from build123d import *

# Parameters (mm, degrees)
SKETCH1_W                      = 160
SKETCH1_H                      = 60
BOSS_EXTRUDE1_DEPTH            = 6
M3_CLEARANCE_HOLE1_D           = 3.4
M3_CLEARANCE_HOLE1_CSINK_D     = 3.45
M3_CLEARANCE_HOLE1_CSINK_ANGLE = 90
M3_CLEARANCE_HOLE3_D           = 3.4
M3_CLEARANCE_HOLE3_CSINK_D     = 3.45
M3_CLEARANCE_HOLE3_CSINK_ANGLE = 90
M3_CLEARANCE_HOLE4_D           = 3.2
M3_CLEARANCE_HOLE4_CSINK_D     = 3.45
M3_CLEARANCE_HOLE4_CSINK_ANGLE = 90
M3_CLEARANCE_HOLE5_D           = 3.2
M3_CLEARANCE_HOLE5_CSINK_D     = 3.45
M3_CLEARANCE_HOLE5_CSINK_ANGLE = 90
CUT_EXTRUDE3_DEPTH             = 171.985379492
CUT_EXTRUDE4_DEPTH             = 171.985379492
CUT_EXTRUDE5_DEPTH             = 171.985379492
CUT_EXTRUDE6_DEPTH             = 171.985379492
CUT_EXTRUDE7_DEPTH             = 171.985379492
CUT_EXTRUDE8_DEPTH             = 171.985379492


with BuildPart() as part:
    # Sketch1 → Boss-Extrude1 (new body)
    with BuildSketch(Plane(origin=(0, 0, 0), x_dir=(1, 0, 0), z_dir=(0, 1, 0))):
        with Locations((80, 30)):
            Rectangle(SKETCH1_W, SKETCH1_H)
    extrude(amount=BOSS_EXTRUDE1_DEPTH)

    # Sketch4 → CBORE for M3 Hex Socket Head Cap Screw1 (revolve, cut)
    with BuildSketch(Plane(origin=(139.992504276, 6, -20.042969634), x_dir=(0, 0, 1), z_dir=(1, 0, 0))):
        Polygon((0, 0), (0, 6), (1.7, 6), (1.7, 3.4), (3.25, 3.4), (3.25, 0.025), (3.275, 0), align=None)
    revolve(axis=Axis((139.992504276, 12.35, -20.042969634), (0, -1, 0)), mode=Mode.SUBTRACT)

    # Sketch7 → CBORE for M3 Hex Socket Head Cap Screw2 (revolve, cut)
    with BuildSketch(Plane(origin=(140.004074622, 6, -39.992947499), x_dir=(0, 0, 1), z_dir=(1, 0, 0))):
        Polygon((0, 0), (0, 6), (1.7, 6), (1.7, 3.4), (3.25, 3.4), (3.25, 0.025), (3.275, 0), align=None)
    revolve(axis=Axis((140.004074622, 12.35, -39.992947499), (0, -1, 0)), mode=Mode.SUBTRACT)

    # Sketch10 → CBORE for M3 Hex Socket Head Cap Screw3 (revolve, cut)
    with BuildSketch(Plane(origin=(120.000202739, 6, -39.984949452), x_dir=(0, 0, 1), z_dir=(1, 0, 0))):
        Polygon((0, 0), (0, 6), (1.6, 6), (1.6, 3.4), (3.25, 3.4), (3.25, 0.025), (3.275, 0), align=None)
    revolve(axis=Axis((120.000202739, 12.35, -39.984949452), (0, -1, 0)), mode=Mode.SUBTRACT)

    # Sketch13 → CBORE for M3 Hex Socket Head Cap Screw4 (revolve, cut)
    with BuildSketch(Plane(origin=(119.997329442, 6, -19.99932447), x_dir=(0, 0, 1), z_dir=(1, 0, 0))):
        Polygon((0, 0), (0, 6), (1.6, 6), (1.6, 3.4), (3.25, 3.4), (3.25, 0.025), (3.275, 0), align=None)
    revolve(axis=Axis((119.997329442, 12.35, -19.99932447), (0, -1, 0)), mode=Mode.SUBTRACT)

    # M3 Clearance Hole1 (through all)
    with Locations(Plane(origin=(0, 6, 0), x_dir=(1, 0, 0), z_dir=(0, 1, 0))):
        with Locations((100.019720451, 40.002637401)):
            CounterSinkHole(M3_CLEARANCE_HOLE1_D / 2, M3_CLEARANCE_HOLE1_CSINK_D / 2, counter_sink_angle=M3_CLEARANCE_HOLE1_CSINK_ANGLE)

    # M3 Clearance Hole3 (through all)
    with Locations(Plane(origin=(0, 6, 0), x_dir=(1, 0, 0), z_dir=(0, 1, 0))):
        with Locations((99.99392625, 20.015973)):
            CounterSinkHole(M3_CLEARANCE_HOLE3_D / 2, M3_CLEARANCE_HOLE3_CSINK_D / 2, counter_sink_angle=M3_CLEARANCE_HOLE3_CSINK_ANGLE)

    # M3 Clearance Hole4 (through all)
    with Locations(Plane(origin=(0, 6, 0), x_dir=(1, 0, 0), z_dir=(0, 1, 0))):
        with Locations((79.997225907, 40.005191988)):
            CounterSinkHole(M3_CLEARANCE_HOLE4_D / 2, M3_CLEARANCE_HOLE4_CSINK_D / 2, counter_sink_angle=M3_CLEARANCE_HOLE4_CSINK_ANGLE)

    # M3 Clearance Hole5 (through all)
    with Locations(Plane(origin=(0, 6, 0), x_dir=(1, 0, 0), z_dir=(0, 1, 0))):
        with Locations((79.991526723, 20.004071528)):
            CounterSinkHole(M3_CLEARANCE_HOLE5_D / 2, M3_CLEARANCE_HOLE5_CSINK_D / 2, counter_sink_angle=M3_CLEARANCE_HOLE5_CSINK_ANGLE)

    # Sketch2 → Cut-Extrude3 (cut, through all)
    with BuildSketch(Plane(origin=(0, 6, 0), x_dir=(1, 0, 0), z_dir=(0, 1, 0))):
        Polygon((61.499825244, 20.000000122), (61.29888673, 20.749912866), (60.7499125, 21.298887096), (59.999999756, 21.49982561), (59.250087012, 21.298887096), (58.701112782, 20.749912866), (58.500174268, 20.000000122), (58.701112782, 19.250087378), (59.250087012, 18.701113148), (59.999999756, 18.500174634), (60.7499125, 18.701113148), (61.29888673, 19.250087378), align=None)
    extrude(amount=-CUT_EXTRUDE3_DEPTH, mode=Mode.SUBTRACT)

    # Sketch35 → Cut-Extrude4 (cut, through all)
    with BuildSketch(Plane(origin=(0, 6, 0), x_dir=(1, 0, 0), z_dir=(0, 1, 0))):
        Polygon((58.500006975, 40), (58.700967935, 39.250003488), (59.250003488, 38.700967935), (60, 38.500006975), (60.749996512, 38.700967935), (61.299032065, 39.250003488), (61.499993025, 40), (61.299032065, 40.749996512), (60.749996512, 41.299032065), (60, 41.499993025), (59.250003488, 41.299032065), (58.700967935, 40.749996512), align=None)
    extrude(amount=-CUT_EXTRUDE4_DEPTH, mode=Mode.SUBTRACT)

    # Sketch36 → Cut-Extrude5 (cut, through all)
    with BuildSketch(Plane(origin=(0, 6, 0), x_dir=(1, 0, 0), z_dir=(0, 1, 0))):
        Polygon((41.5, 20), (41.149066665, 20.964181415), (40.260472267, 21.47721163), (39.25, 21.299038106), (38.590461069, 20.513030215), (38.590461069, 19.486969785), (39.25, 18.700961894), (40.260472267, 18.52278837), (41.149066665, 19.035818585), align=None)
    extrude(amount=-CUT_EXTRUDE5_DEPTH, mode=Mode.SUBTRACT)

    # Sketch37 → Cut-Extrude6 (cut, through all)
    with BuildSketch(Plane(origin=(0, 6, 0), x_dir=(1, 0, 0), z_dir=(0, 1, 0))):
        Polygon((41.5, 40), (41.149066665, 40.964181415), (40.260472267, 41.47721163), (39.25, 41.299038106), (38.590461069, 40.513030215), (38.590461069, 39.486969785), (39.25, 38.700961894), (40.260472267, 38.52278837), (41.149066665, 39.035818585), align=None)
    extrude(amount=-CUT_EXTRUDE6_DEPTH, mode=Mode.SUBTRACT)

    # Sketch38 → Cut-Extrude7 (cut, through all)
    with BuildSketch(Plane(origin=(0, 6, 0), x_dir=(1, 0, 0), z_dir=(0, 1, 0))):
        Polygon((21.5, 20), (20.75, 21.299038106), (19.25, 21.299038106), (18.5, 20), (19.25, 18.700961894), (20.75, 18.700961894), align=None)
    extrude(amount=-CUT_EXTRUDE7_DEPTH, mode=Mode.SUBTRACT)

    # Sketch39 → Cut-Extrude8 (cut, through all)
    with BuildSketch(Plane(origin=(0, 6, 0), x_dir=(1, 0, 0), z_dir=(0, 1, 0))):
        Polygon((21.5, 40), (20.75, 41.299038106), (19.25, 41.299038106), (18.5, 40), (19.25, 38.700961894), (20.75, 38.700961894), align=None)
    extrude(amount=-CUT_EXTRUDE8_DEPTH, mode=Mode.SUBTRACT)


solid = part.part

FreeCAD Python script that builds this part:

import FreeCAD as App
import Part
import Sketcher
from FreeCAD import Vector
Q = App.Units.Quantity


def add_polygon(sketch, points):
    """Adds a closed chain of lines whose ends are joined by coincident constraints."""
    first, n = sketch.GeometryCount, len(points)
    for a, b in zip(points, points[1:] + points[:1]):
        sketch.addGeometry(Part.LineSegment(App.Vector(*a, 0), App.Vector(*b, 0)), False)
    for i in range(n):
        sketch.addConstraint(Sketcher.Constraint("Coincident", first + i, 2, first + (i + 1) % n, 1))

doc = App.newDocument("Part")
body = doc.addObject("PartDesign::Body", "Body")

# Sketch on XZ plane
sketch1 = body.newObject("Sketcher::SketchObject", "Sketch")
sketch1.AttachmentSupport = (doc.getObject("XZ_Plane"), [""])
sketch1.MapMode = "FlatFace"
add_polygon(sketch1, [(0, -60), (0, 0), (160, 0), (160, -60)])  # lines 0-3
sketch1.addConstraint([
    Sketcher.Constraint("Vertical", 0),
    Sketcher.Constraint("Horizontal", 1),
    Sketcher.Constraint("Vertical", 2),
    Sketcher.Constraint("Horizontal", 3),
    Sketcher.Constraint("Coincident", 0, 2, -1, 1),
    Sketcher.Constraint("DistanceX", 1, 1, 1, 2, 160.0),
    Sketcher.Constraint("DistanceY", 0, 1, 0, 2, 60.0),
])
pad1 = body.newObject("PartDesign::Pad", "Pad")
pad1.Profile = sketch1
pad1.Length = 6
pad1.Reversed = True

# Sketch on YZ plane
sketch2 = body.newObject("Sketcher::SketchObject", "Sketch001")
sketch2.AttachmentSupport = (doc.getObject("YZ_Plane"), [""])
sketch2.MapMode = "FlatFace"
sketch2.AttachmentOffset = App.Placement(Vector(0, 0, 139.992504), App.Rotation())
add_polygon(sketch2, [(0, -20.04297), (6, -20.04297), (6, -16.76797), (5.975, -16.79297), (2.6, -16.79297), (2.6, -18.34297), (0, -18.34297)])  # lines 0-6
sketch2.addGeometry(Part.LineSegment(Vector(6, -20.04297, 0), Vector(0, -20.04297, 0)), True)  # axis
sketch2.addConstraint([
    Sketcher.Constraint("Horizontal", 0),
    Sketcher.Constraint("Vertical", 1),
    Sketcher.Constraint("Horizontal", 3),
    Sketcher.Constraint("Vertical", 4),
    Sketcher.Constraint("Horizontal", 5),
    Sketcher.Constraint("Vertical", 6),
    Sketcher.Constraint("Horizontal", 7),
    Sketcher.Constraint("Coincident", 7, 1, 0, 2),
    Sketcher.Constraint("PointOnObject", 5, 2, -2),
    Sketcher.Constraint("PointOnObject", 7, 2, -2),
    Sketcher.Constraint("DistanceX", 0, 1, 0, 2, 6.0),
    Sketcher.Constraint("Angle", 2, Q("-135 deg")),
    Sketcher.Constraint("DistanceX", 5, 2, 5, 1, 2.6),
    Sketcher.Constraint("DistanceY", 6, 2, 6, 1, 1.7),
    Sketcher.Constraint("DistanceY", 4, 2, 4, 1, 1.55),
    Sketcher.Constraint("DistanceX", 3, 2, 3, 1, 3.375),
    Sketcher.Constraint("DistanceY", 0, 2, -1, 1, 20.04297),
])
groove = body.newObject("PartDesign::Groove", "Groove")
groove.Profile = sketch2
groove.ReferenceAxis = (sketch2, ["Axis0"])
groove.Angle = 360

# Sketch on YZ plane
sketch3 = body.newObject("Sketcher::SketchObject", "Sketch002")
sketch3.AttachmentSupport = (doc.getObject("YZ_Plane"), [""])
sketch3.MapMode = "FlatFace"
sketch3.AttachmentOffset = App.Placement(Vector(0, 0, 140.004075), App.Rotation())
add_polygon(sketch3, [(0, -39.993), (6, -39.993), (6, -36.718), (5.975, -36.743), (2.6, -36.743), (2.6, -38.293), (0, -38.293)])  # lines 0-6
sketch3.addGeometry(Part.LineSegment(Vector(6, -39.993, 0), Vector(0, -39.993, 0)), True)  # axis
sketch3.addConstraint([
    Sketcher.Constraint("Horizontal", 0),
    Sketcher.Constraint("Vertical", 1),
    Sketcher.Constraint("Horizontal", 3),
    Sketcher.Constraint("Vertical", 4),
    Sketcher.Constraint("Horizontal", 5),
    Sketcher.Constraint("Vertical", 6),
    Sketcher.Constraint("Horizontal", 7),
    Sketcher.Constraint("Coincident", 7, 1, 0, 2),
    Sketcher.Constraint("PointOnObject", 5, 2, -2),
    Sketcher.Constraint("PointOnObject", 7, 2, -2),
    Sketcher.Constraint("DistanceX", 0, 1, 0, 2, 6.0),
    Sketcher.Constraint("Angle", 2, Q("-135 deg")),
    Sketcher.Constraint("DistanceX", 5, 2, 5, 1, 2.6),
    Sketcher.Constraint("DistanceY", 6, 2, 6, 1, 1.7),
    Sketcher.Constraint("DistanceY", 4, 2, 4, 1, 1.55),
    Sketcher.Constraint("DistanceX", 3, 2, 3, 1, 3.375),
    Sketcher.Constraint("DistanceY", 0, 2, -1, 1, 39.992947),
])
groove2 = body.newObject("PartDesign::Groove", "Groove001")
groove2.Profile = sketch3
groove2.ReferenceAxis = (sketch3, ["Axis0"])
groove2.Angle = 360

# Sketch on YZ plane
sketch4 = body.newObject("Sketcher::SketchObject", "Sketch003")
sketch4.AttachmentSupport = (doc.getObject("YZ_Plane"), [""])
sketch4.MapMode = "FlatFace"
sketch4.AttachmentOffset = App.Placement(Vector(0, 0, 120.000203), App.Rotation())
add_polygon(sketch4, [(0, -39.985), (6, -39.985), (6, -36.71), (5.975, -36.735), (2.6, -36.735), (2.6, -38.385), (0, -38.385)])  # lines 0-6
sketch4.addGeometry(Part.LineSegment(Vector(6, -39.985, 0), Vector(0, -39.985, 0)), True)  # axis
sketch4.addConstraint([
    Sketcher.Constraint("Horizontal", 0),
    Sketcher.Constraint("Vertical", 1),
    Sketcher.Constraint("Horizontal", 3),
    Sketcher.Constraint("Vertical", 4),
    Sketcher.Constraint("Horizontal", 5),
    Sketcher.Constraint("Vertical", 6),
    Sketcher.Constraint("Horizontal", 7),
    Sketcher.Constraint("Coincident", 7, 1, 0, 2),
    Sketcher.Constraint("PointOnObject", 5, 2, -2),
    Sketcher.Constraint("PointOnObject", 7, 2, -2),
    Sketcher.Constraint("DistanceX", 0, 1, 0, 2, 6.0),
    Sketcher.Constraint("Angle", 2, Q("-135 deg")),
    Sketcher.Constraint("DistanceX", 5, 2, 5, 1, 2.6),
    Sketcher.Constraint("DistanceY", 6, 2, 6, 1, 1.6),
    Sketcher.Constraint("DistanceY", 4, 2, 4, 1, 1.65),
    Sketcher.Constraint("DistanceX", 3, 2, 3, 1, 3.375),
    Sketcher.Constraint("DistanceY", 0, 2, -1, 1, 39.984949),
])
groove3 = body.newObject("PartDesign::Groove", "Groove002")
groove3.Profile = sketch4
groove3.ReferenceAxis = (sketch4, ["Axis0"])
groove3.Angle = 360

# Sketch on YZ plane
sketch5 = body.newObject("Sketcher::SketchObject", "Sketch004")
sketch5.AttachmentSupport = (doc.getObject("YZ_Plane"), [""])
sketch5.MapMode = "FlatFace"
sketch5.AttachmentOffset = App.Placement(Vector(0, 0, 119.997329), App.Rotation())
add_polygon(sketch5, [(0, -19.999), (6, -19.999), (6, -16.724), (5.975, -16.749), (2.6, -16.749), (2.6, -18.399), (0, -18.399)])  # lines 0-6
sketch5.addGeometry(Part.LineSegment(Vector(6, -19.999, 0), Vector(0, -19.999, 0)), True)  # axis
sketch5.addConstraint([
    Sketcher.Constraint("Horizontal", 0),
    Sketcher.Constraint("Vertical", 1),
    Sketcher.Constraint("Horizontal", 3),
    Sketcher.Constraint("Vertical", 4),
    Sketcher.Constraint("Horizontal", 5),
    Sketcher.Constraint("Vertical", 6),
    Sketcher.Constraint("Horizontal", 7),
    Sketcher.Constraint("Coincident", 7, 1, 0, 2),
    Sketcher.Constraint("PointOnObject", 5, 2, -2),
    Sketcher.Constraint("PointOnObject", 7, 2, -2),
    Sketcher.Constraint("DistanceX", 0, 1, 0, 2, 6.0),
    Sketcher.Constraint("Angle", 2, Q("-135 deg")),
    Sketcher.Constraint("DistanceX", 5, 2, 5, 1, 2.6),
    Sketcher.Constraint("DistanceY", 6, 2, 6, 1, 1.6),
    Sketcher.Constraint("DistanceY", 4, 2, 4, 1, 1.65),
    Sketcher.Constraint("DistanceX", 3, 2, 3, 1, 3.375),
    Sketcher.Constraint("DistanceY", 0, 2, -1, 1, 19.999324),
])
groove4 = body.newObject("PartDesign::Groove", "Groove003")
groove4.Profile = sketch5
groove4.ReferenceAxis = (sketch5, ["Axis0"])
groove4.Angle = 360

# Sketch on XZ plane
sketch6 = body.newObject("Sketcher::SketchObject", "Sketch005")
sketch6.AttachmentSupport = (doc.getObject("XZ_Plane"), [""])
sketch6.MapMode = "FlatFace"
sketch6.AttachmentOffset = App.Placement(Vector(0, 0, -6), App.Rotation())
sketch6.addGeometry(Part.Circle(Vector(100, -40, 0), Vector(0, 0, 1), 1.7), False)
sketch6.addConstraint([
    Sketcher.Constraint("Diameter", 0, 3.4),
    Sketcher.Constraint("DistanceX", -1, 1, 0, 3, 100.01972),
    Sketcher.Constraint("DistanceY", 0, 3, -1, 1, 40.002637),
])
doc.recompute()
hole = body.newObject("PartDesign::Hole", "Hole")
hole.Profile = sketch6
hole.ThreadType = "None"
hole.Diameter = 3.4
hole.DepthType = "ThroughAll"
hole.HoleCutType = "Countersink"
hole.HoleCutDiameter = 3.45
hole.HoleCutCountersinkAngle = 90
hole.Reversed = True

# Sketch on XZ plane
sketch7 = body.newObject("Sketcher::SketchObject", "Sketch006")
sketch7.AttachmentSupport = (doc.getObject("XZ_Plane"), [""])
sketch7.MapMode = "FlatFace"
sketch7.AttachmentOffset = App.Placement(Vector(0, 0, -6), App.Rotation())
sketch7.addGeometry(Part.Circle(Vector(100, -20, 0), Vector(0, 0, 1), 1.7), False)
sketch7.addConstraint([
    Sketcher.Constraint("Diameter", 0, 3.4),
    Sketcher.Constraint("DistanceX", -1, 1, 0, 3, 99.993926),
    Sketcher.Constraint("DistanceY", 0, 3, -1, 1, 20.015973),
])
doc.recompute()
hole2 = body.newObject("PartDesign::Hole", "Hole001")
hole2.Profile = sketch7
hole2.ThreadType = "None"
hole2.Diameter = 3.4
hole2.DepthType = "ThroughAll"
hole2.HoleCutType = "Countersink"
hole2.HoleCutDiameter = 3.45
hole2.HoleCutCountersinkAngle = 90
hole2.Reversed = True

# Sketch on XZ plane
sketch8 = body.newObject("Sketcher::SketchObject", "Sketch007")
sketch8.AttachmentSupport = (doc.getObject("XZ_Plane"), [""])
sketch8.MapMode = "FlatFace"
sketch8.AttachmentOffset = App.Placement(Vector(0, 0, -6), App.Rotation())
sketch8.addGeometry(Part.Circle(Vector(80, -40, 0), Vector(0, 0, 1), 1.6), False)
sketch8.addConstraint([
    Sketcher.Constraint("Diameter", 0, 3.2),
    Sketcher.Constraint("DistanceY", 0, 3, -1, 1, 40.005192),
    Sketcher.Constraint("DistanceX", -1, 1, 0, 3, 79.997226),
])
doc.recompute()
hole3 = body.newObject("PartDesign::Hole", "Hole002")
hole3.Profile = sketch8
hole3.ThreadType = "None"
hole3.Diameter = 3.2
hole3.DepthType = "ThroughAll"
hole3.HoleCutType = "Countersink"
hole3.HoleCutDiameter = 3.45
hole3.HoleCutCountersinkAngle = 90
hole3.Reversed = True

# Sketch on XZ plane
sketch9 = body.newObject("Sketcher::SketchObject", "Sketch008")
sketch9.AttachmentSupport = (doc.getObject("XZ_Plane"), [""])
sketch9.MapMode = "FlatFace"
sketch9.AttachmentOffset = App.Placement(Vector(0, 0, -6), App.Rotation())
sketch9.addGeometry(Part.Circle(Vector(80, -20, 0), Vector(0, 0, 1), 1.6), False)
sketch9.addConstraint([
    Sketcher.Constraint("Diameter", 0, 3.2),
    Sketcher.Constraint("DistanceY", 0, 3, -1, 1, 20.004072),
    Sketcher.Constraint("DistanceX", -1, 1, 0, 3, 79.991527),
])
doc.recompute()
hole4 = body.newObject("PartDesign::Hole", "Hole003")
hole4.Profile = sketch9
hole4.ThreadType = "None"
hole4.Diameter = 3.2
hole4.DepthType = "ThroughAll"
hole4.HoleCutType = "Countersink"
hole4.HoleCutDiameter = 3.45
hole4.HoleCutCountersinkAngle = 90
hole4.Reversed = True

# Sketch on XZ plane
sketch10 = body.newObject("Sketcher::SketchObject", "Sketch009")
sketch10.AttachmentSupport = (doc.getObject("XZ_Plane"), [""])
sketch10.MapMode = "FlatFace"
sketch10.AttachmentOffset = App.Placement(Vector(0, 0, -6), App.Rotation())
add_polygon(sketch10, [(61.5, -20), (61.3, -20.7), (60.7, -21.3), (60, -21.5), (59.3, -21.3), (58.7, -20.7), (58.5, -20), (58.7, -19.3), (59.3, -18.7), (60, -18.5), (60.7, -18.7), (61.3, -19.3)])  # lines 0-11
sketch10.addConstraint([
    Sketcher.Constraint("Perpendicular", 0, 3),
    Sketcher.Constraint("Perpendicular", 1, 4),
    Sketcher.Constraint("Perpendicular", 2, 5),
    Sketcher.Constraint("Perpendicular", 3, 6),
    Sketcher.Constraint("Perpendicular", 4, 7),
    Sketcher.Constraint("Perpendicular", 5, 8),
    Sketcher.Constraint("Perpendicular", 6, 9),
    Sketcher.Constraint("Perpendicular", 7, 10),
    Sketcher.Constraint("Perpendicular", 8, 11),
    Sketcher.Constraint("Horizontal", 1, 2, 3, 2),
    Sketcher.Constraint("Horizontal", 0, 2, 4, 2),
    Sketcher.Constraint("Horizontal", 7, 2, 9, 2),
    Sketcher.Constraint("Horizontal", 6, 2, 10, 2),
    Sketcher.Constraint("Horizontal", 5, 2, 11, 2),
    Sketcher.Constraint("Vertical", 4, 2, 6, 2),
    Sketcher.Constraint("Vertical", 3, 2, 7, 2),
    Sketcher.Constraint("Vertical", 2, 2, 8, 2),
    Sketcher.Constraint("Vertical", 1, 2, 9, 2),
    Sketcher.Constraint("Equal", 0, 1),
    Sketcher.Constraint("Equal", 1, 2),
    Sketcher.Constraint("Angle", 0, Q("-105 deg")),
    Sketcher.Constraint("DistanceX", -1, 1, 2, 2, 60.0),
    Sketcher.Constraint("DistanceY", 5, 2, -1, 1, 20.0),
    Sketcher.Constraint("DistanceX", 3, 2, 0, 2, 2.0488),
])
pocket1 = body.newObject("PartDesign::Pocket", "Pocket")
pocket1.Profile = sketch10
pocket1.Type = "ThroughAll"
pocket1.Reversed = True

# Sketch on XZ plane
sketch11 = body.newObject("Sketcher::SketchObject", "Sketch010")
sketch11.AttachmentSupport = (doc.getObject("XZ_Plane"), [""])
sketch11.MapMode = "FlatFace"
sketch11.AttachmentOffset = App.Placement(Vector(0, 0, -6), App.Rotation())
add_polygon(sketch11, [(58.5, -40), (58.7, -39.3), (59.3, -38.7), (60, -38.5), (60.7, -38.7), (61.3, -39.3), (61.5, -40), (61.3, -40.7), (60.7, -41.3), (60, -41.5), (59.3, -41.3), (58.7, -40.7)])  # lines 0-11
sketch11.addConstraint([
    Sketcher.Constraint("Perpendicular", 0, 3),
    Sketcher.Constraint("Perpendicular", 1, 4),
    Sketcher.Constraint("Perpendicular", 2, 5),
    Sketcher.Constraint("Perpendicular", 3, 6),
    Sketcher.Constraint("Perpendicular", 4, 7),
    Sketcher.Constraint("Perpendicular", 5, 8),
    Sketcher.Constraint("Perpendicular", 6, 9),
    Sketcher.Constraint("Perpendicular", 7, 10),
    Sketcher.Constraint("Perpendicular", 8, 11),
    Sketcher.Constraint("Horizontal", 1, 2, 3, 2),
    Sketcher.Constraint("Horizontal", 0, 2, 4, 2),
    Sketcher.Constraint("Horizontal", 7, 2, 9, 2),
    Sketcher.Constraint("Horizontal", 6, 2, 10, 2),
    Sketcher.Constraint("Horizontal", 5, 2, 11, 2),
    Sketcher.Constraint("Vertical", 4, 2, 6, 2),
    Sketcher.Constraint("Vertical", 3, 2, 7, 2),
    Sketcher.Constraint("Vertical", 2, 2, 8, 2),
    Sketcher.Constraint("Vertical", 1, 2, 9, 2),
    Sketcher.Constraint("Equal", 0, 1),
    Sketcher.Constraint("Equal", 1, 2),
    Sketcher.Constraint("Angle", 0, Q("75 deg")),
    Sketcher.Constraint("DistanceX", -1, 1, 2, 2, 60.0),
    Sketcher.Constraint("DistanceY", 5, 2, -1, 1, 40.0),
    Sketcher.Constraint("DistanceY", 1, 2, 2, 2, 0.200961),
])
pocket2 = body.newObject("PartDesign::Pocket", "Pocket001")
pocket2.Profile = sketch11
pocket2.Type = "ThroughAll"
pocket2.Reversed = True

# Sketch on XZ plane
sketch12 = body.newObject("Sketcher::SketchObject", "Sketch011")
sketch12.AttachmentSupport = (doc.getObject("XZ_Plane"), [""])
sketch12.MapMode = "FlatFace"
sketch12.AttachmentOffset = App.Placement(Vector(0, 0, -6), App.Rotation())
add_polygon(sketch12, [(41.5, -20), (41.1, -21), (40.3, -21.5), (39.2, -21.3), (38.6, -20.5), (38.6, -19.5), (39.2, -18.7), (40.3, -18.5), (41.1, -19)])  # lines 0-8
sketch12.addConstraint([
    Sketcher.Constraint("Vertical", 4),
    Sketcher.Constraint("Vertical", 2, 2, 5, 2),
    Sketcher.Constraint("Vertical", 1, 2, 6, 2),
    Sketcher.Constraint("Vertical", 0, 2, 7, 2),
    Sketcher.Constraint("Equal", 0, 1),
    Sketcher.Constraint("Equal", 1, 2),
    Sketcher.Constraint("Equal", 2, 3),
    Sketcher.Constraint("Equal", 3, 5),
    Sketcher.Constraint("Equal", 5, 6),
    Sketcher.Constraint("Equal", 6, 7),
    Sketcher.Constraint("Equal", 7, 8),
    Sketcher.Constraint("Angle", 0, Q("-110 deg")),
    Sketcher.Constraint("Angle", 1, Q("-150 deg")),
    Sketcher.Constraint("Angle", 2, Q("170 deg")),
    Sketcher.Constraint("Angle", 3, Q("130 deg")),
    Sketcher.Constraint("DistanceY", 8, 2, -1, 1, 20.0),
    Sketcher.Constraint("DistanceX", -1, 1, 8, 2, 41.5),
    Sketcher.Constraint("DistanceX", -1, 1, 2, 2, 39.25),
])
pocket3 = body.newObject("PartDesign::Pocket", "Pocket002")
pocket3.Profile = sketch12
pocket3.Type = "ThroughAll"
pocket3.Reversed = True

# Sketch on XZ plane
sketch13 = body.newObject("Sketcher::SketchObject", "Sketch012")
sketch13.AttachmentSupport = (doc.getObject("XZ_Plane"), [""])
sketch13.MapMode = "FlatFace"
sketch13.AttachmentOffset = App.Placement(Vector(0, 0, -6), App.Rotation())
add_polygon(sketch13, [(41.5, -40), (41.1, -41), (40.3, -41.5), (39.2, -41.3), (38.6, -40.5), (38.6, -39.5), (39.2, -38.7), (40.3, -38.5), (41.1, -39)])  # lines 0-8
sketch13.addConstraint([
    Sketcher.Constraint("Vertical", 4),
    Sketcher.Constraint("Vertical", 2, 2, 5, 2),
    Sketcher.Constraint("Vertical", 1, 2, 6, 2),
    Sketcher.Constraint("Vertical", 0, 2, 7, 2),
    Sketcher.Constraint("Equal", 0, 1),
    Sketcher.Constraint("Equal", 1, 2),
    Sketcher.Constraint("Equal", 2, 3),
    Sketcher.Constraint("Equal", 3, 5),
    Sketcher.Constraint("Equal", 5, 6),
    Sketcher.Constraint("Equal", 6, 7),
    Sketcher.Constraint("Equal", 7, 8),
    Sketcher.Constraint("Angle", 0, Q("-110 deg")),
    Sketcher.Constraint("Angle", 1, Q("-150 deg")),
    Sketcher.Constraint("Angle", 2, Q("170 deg")),
    Sketcher.Constraint("Angle", 3, Q("130 deg")),
    Sketcher.Constraint("DistanceY", 8, 2, -1, 1, 40.0),
    Sketcher.Constraint("DistanceX", -1, 1, 8, 2, 41.5),
    Sketcher.Constraint("DistanceX", -1, 1, 2, 2, 39.25),
])
pocket4 = body.newObject("PartDesign::Pocket", "Pocket003")
pocket4.Profile = sketch13
pocket4.Type = "ThroughAll"
pocket4.Reversed = True

# Sketch on XZ plane
sketch14 = body.newObject("Sketcher::SketchObject", "Sketch013")
sketch14.AttachmentSupport = (doc.getObject("XZ_Plane"), [""])
sketch14.MapMode = "FlatFace"
sketch14.AttachmentOffset = App.Placement(Vector(0, 0, -6), App.Rotation())
add_polygon(sketch14, [(21.5, -20), (20.8, -21.3), (19.2, -21.3), (18.5, -20), (19.2, -18.7), (20.8, -18.7)])  # lines 0-5
sketch14.addConstraint([
    Sketcher.Constraint("Horizontal", 1),
    Sketcher.Constraint("Horizontal", 4),
    Sketcher.Constraint("Parallel", 0, 3),
    Sketcher.Constraint("Parallel", 2, 5),
    Sketcher.Constraint("Horizontal", 2, 2, 5, 2),
    Sketcher.Constraint("Vertical", 1, 2, 3, 2),
    Sketcher.Constraint("Vertical", 0, 2, 4, 2),
    Sketcher.Constraint("Angle", 0, Q("-120 deg")),
    Sketcher.Constraint("DistanceX", 1, 2, 1, 1, 1.5),
    Sketcher.Constraint("DistanceY", 2, 2, -1, 1, 20.0),
    Sketcher.Constraint("DistanceX", 2, 2, 5, 2, 3.0),
    Sketcher.Constraint("DistanceX", -1, 1, 2, 2, 18.5),
])
pocket5 = body.newObject("PartDesign::Pocket", "Pocket004")
pocket5.Profile = sketch14
pocket5.Type = "ThroughAll"
pocket5.Reversed = True

# Sketch on XZ plane
sketch15 = body.newObject("Sketcher::SketchObject", "Sketch014")
sketch15.AttachmentSupport = (doc.getObject("XZ_Plane"), [""])
sketch15.MapMode = "FlatFace"
sketch15.AttachmentOffset = App.Placement(Vector(0, 0, -6), App.Rotation())
add_polygon(sketch15, [(21.5, -40), (20.8, -41.3), (19.2, -41.3), (18.5, -40), (19.2, -38.7), (20.8, -38.7)])  # lines 0-5
sketch15.addConstraint([
    Sketcher.Constraint("Horizontal", 1),
    Sketcher.Constraint("Horizontal", 4),
    Sketcher.Constraint("Parallel", 0, 3),
    Sketcher.Constraint("Parallel", 2, 5),
    Sketcher.Constraint("Horizontal", 2, 2, 5, 2),
    Sketcher.Constraint("Vertical", 1, 2, 3, 2),
    Sketcher.Constraint("Vertical", 0, 2, 4, 2),
    Sketcher.Constraint("Angle", 0, Q("-120 deg")),
    Sketcher.Constraint("DistanceX", 1, 2, 1, 1, 1.5),
    Sketcher.Constraint("DistanceY", 2, 2, -1, 1, 40.0),
    Sketcher.Constraint("DistanceX", 2, 2, 5, 2, 3.0),
    Sketcher.Constraint("DistanceX", -1, 1, 2, 2, 18.5),
])
pocket6 = body.newObject("PartDesign::Pocket", "Pocket005")
pocket6.Profile = sketch15
pocket6.Type = "ThroughAll"
pocket6.Reversed = True

doc.recompute()
